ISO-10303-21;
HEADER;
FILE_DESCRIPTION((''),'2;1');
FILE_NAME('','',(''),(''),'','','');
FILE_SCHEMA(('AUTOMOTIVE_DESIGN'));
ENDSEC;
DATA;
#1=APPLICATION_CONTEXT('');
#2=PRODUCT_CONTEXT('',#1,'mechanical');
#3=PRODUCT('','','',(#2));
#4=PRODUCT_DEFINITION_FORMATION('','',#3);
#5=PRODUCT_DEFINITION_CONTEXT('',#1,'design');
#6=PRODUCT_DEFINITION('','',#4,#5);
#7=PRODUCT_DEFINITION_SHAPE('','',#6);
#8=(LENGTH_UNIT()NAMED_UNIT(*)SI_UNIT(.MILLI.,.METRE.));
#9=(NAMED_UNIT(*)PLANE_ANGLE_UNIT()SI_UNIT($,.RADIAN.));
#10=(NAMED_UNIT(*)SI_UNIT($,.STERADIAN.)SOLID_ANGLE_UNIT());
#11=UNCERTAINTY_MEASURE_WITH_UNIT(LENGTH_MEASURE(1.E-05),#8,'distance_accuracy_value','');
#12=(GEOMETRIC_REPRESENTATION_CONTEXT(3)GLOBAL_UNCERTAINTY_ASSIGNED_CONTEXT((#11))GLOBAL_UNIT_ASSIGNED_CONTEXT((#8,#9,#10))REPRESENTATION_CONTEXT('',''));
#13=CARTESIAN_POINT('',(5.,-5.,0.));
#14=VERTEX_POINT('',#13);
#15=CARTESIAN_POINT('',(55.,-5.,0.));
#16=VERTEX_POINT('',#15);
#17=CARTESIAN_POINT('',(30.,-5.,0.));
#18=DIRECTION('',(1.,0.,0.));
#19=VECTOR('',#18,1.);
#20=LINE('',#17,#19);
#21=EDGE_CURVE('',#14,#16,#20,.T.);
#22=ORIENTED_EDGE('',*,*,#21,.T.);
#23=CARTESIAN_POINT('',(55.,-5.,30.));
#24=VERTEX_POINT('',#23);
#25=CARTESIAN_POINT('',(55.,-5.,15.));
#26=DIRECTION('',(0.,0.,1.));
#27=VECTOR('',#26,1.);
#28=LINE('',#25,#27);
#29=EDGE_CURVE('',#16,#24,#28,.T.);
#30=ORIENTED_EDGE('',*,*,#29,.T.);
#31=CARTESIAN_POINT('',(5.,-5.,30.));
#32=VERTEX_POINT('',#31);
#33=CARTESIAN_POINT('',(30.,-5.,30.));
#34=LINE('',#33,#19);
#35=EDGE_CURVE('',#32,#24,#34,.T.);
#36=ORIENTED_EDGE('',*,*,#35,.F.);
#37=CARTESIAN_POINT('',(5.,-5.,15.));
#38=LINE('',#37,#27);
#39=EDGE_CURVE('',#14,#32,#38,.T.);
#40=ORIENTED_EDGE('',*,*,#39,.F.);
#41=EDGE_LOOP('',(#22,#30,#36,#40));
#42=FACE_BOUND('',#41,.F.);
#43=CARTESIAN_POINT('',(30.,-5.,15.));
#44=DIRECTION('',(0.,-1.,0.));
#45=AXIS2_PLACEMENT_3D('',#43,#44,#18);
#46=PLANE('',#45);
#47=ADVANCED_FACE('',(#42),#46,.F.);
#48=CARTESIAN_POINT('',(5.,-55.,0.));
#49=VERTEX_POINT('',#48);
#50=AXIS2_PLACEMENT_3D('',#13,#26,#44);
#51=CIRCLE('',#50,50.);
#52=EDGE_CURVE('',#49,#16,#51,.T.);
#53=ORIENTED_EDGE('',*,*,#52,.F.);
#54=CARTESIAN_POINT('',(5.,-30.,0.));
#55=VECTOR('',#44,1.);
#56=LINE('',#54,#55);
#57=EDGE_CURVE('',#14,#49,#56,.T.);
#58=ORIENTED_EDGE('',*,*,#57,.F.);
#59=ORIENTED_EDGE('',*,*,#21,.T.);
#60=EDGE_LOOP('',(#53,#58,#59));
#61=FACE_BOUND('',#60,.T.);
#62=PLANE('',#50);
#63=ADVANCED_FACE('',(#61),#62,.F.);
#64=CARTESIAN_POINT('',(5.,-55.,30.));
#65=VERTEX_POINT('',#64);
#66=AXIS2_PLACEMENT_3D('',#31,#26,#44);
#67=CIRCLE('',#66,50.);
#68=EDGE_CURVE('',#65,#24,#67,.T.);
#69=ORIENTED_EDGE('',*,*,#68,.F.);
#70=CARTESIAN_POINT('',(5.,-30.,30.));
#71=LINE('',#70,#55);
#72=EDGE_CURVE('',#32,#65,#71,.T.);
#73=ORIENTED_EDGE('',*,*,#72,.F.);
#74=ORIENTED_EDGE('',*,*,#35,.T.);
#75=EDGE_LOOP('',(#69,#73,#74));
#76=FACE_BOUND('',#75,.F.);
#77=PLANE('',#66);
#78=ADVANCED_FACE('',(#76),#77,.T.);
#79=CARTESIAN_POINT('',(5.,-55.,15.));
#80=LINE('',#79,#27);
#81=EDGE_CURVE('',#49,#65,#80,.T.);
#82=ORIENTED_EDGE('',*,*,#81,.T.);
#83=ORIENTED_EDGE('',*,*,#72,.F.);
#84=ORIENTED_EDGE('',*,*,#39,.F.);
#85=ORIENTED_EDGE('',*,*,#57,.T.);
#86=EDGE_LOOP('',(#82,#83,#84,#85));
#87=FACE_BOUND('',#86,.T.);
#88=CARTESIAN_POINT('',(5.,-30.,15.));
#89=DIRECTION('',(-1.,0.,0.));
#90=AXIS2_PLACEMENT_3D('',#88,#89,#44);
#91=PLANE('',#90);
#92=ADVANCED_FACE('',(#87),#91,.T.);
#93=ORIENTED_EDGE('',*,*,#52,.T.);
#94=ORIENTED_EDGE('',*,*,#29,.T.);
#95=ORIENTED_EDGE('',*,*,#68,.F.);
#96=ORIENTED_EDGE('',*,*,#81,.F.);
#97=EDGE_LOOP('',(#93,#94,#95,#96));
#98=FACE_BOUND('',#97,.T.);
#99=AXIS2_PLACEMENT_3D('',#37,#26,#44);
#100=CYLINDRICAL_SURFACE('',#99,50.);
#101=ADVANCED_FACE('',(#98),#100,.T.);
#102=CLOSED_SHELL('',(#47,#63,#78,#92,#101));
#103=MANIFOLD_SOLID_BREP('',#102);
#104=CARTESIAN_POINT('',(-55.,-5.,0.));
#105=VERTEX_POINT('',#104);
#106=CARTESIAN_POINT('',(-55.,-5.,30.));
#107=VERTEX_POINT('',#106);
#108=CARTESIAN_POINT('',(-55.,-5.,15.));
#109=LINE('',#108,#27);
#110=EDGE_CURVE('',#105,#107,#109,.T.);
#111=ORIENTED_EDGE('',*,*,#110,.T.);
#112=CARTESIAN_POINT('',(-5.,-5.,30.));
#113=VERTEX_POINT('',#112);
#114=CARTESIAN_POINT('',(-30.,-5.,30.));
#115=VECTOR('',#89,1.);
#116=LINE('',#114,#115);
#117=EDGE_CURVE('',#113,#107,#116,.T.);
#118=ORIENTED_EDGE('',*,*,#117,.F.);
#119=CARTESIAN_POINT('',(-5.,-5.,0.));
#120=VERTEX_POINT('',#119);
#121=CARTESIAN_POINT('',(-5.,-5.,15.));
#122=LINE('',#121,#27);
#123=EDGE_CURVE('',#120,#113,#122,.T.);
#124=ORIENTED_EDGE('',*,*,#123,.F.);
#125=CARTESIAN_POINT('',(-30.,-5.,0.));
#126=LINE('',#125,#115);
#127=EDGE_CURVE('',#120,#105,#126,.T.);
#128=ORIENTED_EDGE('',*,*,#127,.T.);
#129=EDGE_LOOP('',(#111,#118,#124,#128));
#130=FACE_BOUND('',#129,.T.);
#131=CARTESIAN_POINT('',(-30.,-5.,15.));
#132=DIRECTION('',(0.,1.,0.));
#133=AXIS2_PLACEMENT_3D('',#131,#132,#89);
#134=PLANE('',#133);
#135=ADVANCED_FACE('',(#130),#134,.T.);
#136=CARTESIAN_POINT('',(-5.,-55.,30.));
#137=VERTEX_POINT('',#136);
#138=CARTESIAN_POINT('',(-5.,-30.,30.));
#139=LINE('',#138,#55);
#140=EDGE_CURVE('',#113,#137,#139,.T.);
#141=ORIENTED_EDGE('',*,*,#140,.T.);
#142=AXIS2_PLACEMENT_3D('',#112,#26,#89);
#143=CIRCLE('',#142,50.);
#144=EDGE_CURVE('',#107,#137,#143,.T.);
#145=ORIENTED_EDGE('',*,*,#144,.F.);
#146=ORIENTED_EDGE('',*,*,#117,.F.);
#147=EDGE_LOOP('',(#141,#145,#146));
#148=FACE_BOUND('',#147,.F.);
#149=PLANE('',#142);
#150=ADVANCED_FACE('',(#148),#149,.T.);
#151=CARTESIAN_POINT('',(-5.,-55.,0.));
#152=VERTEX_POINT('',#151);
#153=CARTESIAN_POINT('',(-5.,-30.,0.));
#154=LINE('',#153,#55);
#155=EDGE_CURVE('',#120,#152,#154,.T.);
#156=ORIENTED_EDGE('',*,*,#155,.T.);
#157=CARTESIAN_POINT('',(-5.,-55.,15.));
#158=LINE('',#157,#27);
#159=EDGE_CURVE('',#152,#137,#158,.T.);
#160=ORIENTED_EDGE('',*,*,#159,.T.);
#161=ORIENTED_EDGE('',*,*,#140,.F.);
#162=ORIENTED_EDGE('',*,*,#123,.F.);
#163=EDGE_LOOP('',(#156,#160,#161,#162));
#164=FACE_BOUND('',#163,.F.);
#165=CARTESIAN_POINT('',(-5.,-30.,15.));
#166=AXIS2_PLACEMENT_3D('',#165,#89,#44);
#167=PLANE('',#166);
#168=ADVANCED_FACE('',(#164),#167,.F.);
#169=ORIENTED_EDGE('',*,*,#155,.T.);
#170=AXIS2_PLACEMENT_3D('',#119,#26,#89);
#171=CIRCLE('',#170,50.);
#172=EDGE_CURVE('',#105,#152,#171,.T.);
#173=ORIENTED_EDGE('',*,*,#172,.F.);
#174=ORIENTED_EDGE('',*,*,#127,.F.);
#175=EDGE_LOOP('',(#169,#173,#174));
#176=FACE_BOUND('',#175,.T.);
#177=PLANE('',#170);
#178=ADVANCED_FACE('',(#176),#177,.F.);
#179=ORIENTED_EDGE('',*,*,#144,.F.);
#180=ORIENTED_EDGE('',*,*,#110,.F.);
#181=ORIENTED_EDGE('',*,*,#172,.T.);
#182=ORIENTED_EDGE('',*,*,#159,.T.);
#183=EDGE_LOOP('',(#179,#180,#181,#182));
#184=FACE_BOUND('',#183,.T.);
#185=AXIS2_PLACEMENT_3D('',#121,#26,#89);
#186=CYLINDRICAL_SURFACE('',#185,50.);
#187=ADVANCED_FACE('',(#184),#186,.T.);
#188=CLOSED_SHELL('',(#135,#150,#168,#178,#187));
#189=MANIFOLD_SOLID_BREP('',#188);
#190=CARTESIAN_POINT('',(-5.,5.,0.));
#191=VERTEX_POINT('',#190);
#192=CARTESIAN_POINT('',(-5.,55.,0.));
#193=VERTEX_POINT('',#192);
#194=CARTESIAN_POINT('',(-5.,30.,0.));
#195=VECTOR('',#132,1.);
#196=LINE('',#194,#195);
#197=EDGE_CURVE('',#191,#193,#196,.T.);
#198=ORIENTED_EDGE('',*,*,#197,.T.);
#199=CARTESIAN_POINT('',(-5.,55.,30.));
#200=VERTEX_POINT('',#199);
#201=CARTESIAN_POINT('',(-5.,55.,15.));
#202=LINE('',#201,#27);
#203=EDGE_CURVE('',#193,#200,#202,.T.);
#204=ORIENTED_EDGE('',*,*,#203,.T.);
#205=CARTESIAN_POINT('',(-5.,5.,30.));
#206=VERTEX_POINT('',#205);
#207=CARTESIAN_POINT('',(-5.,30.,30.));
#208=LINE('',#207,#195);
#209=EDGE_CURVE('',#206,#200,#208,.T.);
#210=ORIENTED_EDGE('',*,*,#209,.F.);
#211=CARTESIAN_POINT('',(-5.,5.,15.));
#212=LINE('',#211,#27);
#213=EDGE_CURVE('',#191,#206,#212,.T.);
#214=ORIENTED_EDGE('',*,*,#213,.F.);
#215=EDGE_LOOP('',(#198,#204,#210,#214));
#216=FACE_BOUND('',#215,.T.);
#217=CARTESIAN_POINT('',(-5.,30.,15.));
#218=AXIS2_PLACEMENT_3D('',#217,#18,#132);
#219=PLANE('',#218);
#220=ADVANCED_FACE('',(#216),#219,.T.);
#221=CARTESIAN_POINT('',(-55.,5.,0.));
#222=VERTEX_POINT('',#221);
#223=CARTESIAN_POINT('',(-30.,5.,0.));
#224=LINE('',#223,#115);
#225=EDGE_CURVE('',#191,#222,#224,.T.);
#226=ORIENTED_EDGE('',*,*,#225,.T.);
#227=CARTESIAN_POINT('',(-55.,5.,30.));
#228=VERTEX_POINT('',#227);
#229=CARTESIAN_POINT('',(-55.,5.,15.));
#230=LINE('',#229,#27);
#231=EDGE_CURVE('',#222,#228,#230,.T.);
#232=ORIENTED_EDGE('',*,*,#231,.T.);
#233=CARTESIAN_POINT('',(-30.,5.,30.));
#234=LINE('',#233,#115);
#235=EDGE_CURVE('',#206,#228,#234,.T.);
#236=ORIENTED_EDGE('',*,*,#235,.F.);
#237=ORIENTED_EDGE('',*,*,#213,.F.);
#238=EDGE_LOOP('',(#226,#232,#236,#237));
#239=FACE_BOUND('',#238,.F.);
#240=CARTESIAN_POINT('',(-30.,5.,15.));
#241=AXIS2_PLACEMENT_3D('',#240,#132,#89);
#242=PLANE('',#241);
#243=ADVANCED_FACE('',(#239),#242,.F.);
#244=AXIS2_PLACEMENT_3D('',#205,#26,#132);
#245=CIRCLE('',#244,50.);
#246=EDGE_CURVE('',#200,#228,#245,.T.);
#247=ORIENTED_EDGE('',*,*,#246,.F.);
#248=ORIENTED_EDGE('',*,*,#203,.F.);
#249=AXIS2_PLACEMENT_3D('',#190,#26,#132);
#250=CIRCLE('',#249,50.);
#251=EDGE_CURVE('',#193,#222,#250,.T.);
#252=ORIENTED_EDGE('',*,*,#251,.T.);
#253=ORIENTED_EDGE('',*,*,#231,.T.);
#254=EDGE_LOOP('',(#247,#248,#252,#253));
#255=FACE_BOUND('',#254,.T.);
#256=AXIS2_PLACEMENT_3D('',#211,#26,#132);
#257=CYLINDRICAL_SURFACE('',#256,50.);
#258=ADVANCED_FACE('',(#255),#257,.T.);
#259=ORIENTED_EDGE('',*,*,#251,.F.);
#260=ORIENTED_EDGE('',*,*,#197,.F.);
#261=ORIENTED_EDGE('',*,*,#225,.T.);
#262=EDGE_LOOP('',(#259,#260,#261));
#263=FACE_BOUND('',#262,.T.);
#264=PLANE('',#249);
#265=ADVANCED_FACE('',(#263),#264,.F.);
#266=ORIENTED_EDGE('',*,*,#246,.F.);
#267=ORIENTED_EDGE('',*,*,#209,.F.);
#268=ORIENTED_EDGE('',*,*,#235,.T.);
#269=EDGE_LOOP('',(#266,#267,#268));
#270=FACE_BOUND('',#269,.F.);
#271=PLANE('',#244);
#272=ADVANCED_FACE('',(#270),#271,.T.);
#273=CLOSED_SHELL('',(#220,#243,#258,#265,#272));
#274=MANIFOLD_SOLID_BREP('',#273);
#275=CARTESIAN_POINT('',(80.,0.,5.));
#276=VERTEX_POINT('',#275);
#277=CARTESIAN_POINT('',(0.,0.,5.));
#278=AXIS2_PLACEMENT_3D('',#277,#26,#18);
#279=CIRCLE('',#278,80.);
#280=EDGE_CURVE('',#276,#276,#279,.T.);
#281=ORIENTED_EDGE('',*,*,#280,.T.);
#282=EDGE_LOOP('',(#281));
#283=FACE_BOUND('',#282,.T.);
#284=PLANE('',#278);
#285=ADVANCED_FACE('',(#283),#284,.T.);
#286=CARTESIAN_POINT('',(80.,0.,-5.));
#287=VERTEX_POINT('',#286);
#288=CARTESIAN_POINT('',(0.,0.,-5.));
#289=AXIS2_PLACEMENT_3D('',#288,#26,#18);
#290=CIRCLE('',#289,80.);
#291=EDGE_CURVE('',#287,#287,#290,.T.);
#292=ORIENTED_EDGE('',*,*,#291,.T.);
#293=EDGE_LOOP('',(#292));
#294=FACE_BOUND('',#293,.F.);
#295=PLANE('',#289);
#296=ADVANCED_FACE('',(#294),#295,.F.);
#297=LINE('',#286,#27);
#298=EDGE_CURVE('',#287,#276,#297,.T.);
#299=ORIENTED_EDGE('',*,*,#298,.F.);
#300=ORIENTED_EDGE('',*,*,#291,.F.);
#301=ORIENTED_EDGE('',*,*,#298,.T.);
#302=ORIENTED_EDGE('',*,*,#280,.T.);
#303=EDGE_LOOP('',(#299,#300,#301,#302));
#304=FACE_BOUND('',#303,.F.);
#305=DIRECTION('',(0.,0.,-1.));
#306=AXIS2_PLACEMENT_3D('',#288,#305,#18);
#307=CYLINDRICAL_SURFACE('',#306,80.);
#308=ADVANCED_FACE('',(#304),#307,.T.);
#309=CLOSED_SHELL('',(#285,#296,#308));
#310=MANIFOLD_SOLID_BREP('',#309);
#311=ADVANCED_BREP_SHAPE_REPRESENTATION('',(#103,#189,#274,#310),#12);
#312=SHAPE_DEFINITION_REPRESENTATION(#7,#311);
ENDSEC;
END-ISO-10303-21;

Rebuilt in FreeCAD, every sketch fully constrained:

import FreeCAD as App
import Part
import Sketcher
from FreeCAD import Vector


def add_polygon(sketch, points):
    """Adds a closed chain of lines whose ends are joined by coincident constraints."""
    first, n = sketch.GeometryCount, len(points)
    for a, b in zip(points, points[1:] + points[:1]):
        sketch.addGeometry(Part.LineSegment(App.Vector(*a, 0), App.Vector(*b, 0)), False)
    for i in range(n):
        sketch.addConstraint(Sketcher.Constraint("Coincident", first + i, 2, first + (i + 1) % n, 1))

doc = App.newDocument("Part")
body = doc.addObject("PartDesign::Body", "Body")

# Sketch on XY plane
sketch1 = doc.addObject("Sketcher::SketchObject", "Sketch")
body.addObject(sketch1)
sketch1.AttachmentSupport = (doc.XY_Plane, [""])
sketch1.MapMode = "FlatFace"
sketch1.AttachmentOffset = App.Placement(Vector(0, 0, -5), App.Rotation())
sketch1.addGeometry(Part.Circle(Vector(0, 0, 0), Vector(0, 0, 1), 80), False)
sketch1.addConstraint([
    Sketcher.Constraint("Coincident", 0, 3, -1, 1),
    Sketcher.Constraint("Diameter", 0, 160.0),
])
pad1 = doc.addObject("PartDesign::Pad", "Pad")
body.addObject(pad1)
pad1.Profile = sketch1
pad1.Length = 10
body2 = doc.addObject("PartDesign::Body", "Body001")

# Sketch on YZ plane
sketch2 = doc.addObject("Sketcher::SketchObject", "Sketch001")
body2.addObject(sketch2)
sketch2.AttachmentSupport = (doc.getObject("YZ_Plane001"), [""])
sketch2.MapMode = "FlatFace"
sketch2.AttachmentOffset = App.Placement(Vector(0, 0, -5), App.Rotation())
add_polygon(sketch2, [(5, 30), (5, 0), (55, 0), (55, 30)])  # lines 0-3
sketch2.addGeometry(Part.LineSegment(Vector(5, 0, 0), Vector(5, 30, 0)), True)  # axis
sketch2.addConstraint([
    Sketcher.Constraint("Vertical", 0),
    Sketcher.Constraint("Horizontal", 1),
    Sketcher.Constraint("Vertical", 2),
    Sketcher.Constraint("Horizontal", 3),
    Sketcher.Constraint("Vertical", 4),
    Sketcher.Constraint("Coincident", 4, 1, 0, 2),
    Sketcher.Constraint("PointOnObject", 0, 2, -1),
    Sketcher.Constraint("Horizontal", 2, 2, 4, 2),
    Sketcher.Constraint("DistanceX", 1, 1, 1, 2, 50.0),
    Sketcher.Constraint("DistanceY", 0, 2, 0, 1, 30.0),
    Sketcher.Constraint("DistanceX", -1, 1, 0, 2, 5.0),
])
revolution = doc.addObject("PartDesign::Revolution", "Revolution")
body2.addObject(revolution)
revolution.Profile = sketch2
revolution.ReferenceAxis = (sketch2, ["Axis0"])
revolution.Angle = 90
body3 = doc.addObject("PartDesign::Body", "Body002")

# Sketch on XZ plane
sketch3 = doc.addObject("Sketcher::SketchObject", "Sketch002")
body3.addObject(sketch3)
sketch3.AttachmentSupport = (doc.getObject("XZ_Plane002"), [""])
sketch3.MapMode = "FlatFace"
sketch3.AttachmentOffset = App.Placement(Vector(0, 0, 5), App.Rotation())
add_polygon(sketch3, [(-5, 30), (-5, 0), (-55, 0), (-55, 30)])  # lines 0-3
sketch3.addGeometry(Part.LineSegment(Vector(-5, 0, 0), Vector(-5, 30, 0)), True)  # axis
sketch3.addConstraint([
    Sketcher.Constraint("Vertical", 0),
    Sketcher.Constraint("Horizontal", 1),
    Sketcher.Constraint("Vertical", 2),
    Sketcher.Constraint("Horizontal", 3),
    Sketcher.Constraint("Vertical", 4),
    Sketcher.Constraint("Coincident", 4, 1, 0, 2),
    Sketcher.Constraint("PointOnObject", 0, 2, -1),
    Sketcher.Constraint("Horizontal", 2, 2, 4, 2),
    Sketcher.Constraint("DistanceX", 1, 2, 1, 1, 50.0),
    Sketcher.Constraint("DistanceY", 0, 2, 0, 1, 30.0),
    Sketcher.Constraint("DistanceX", 0, 2, -1, 1, 5.0),
])
revolution2 = doc.addObject("PartDesign::Revolution", "Revolution001")
body3.addObject(revolution2)
revolution2.Profile = sketch3
revolution2.ReferenceAxis = (sketch3, ["Axis0"])
revolution2.Angle = 90
body4 = doc.addObject("PartDesign::Body", "Body003")

# Sketch on YZ plane
sketch4 = doc.addObject("Sketcher::SketchObject", "Sketch003")
body4.addObject(sketch4)
sketch4.AttachmentSupport = (doc.getObject("YZ_Plane003"), [""])
sketch4.MapMode = "FlatFace"
sketch4.AttachmentOffset = App.Placement(Vector(0, 0, 5), App.Rotation())
add_polygon(sketch4, [(-5, 30), (-5, 0), (-55, 0), (-55, 30)])  # lines 0-3
sketch4.addGeometry(Part.LineSegment(Vector(-5, 0, 0), Vector(-5, 30, 0)), True)  # axis
sketch4.addConstraint([
    Sketcher.Constraint("Vertical", 0),
    Sketcher.Constraint("Horizontal", 1),
    Sketcher.Constraint("Vertical", 2),
    Sketcher.Constraint("Horizontal", 3),
    Sketcher.Constraint("Vertical", 4),
    Sketcher.Constraint("Coincident", 4, 1, 0, 2),
    Sketcher.Constraint("PointOnObject", 0, 2, -1),
    Sketcher.Constraint("Horizontal", 2, 2, 4, 2),
    Sketcher.Constraint("DistanceX", 1, 2, 1, 1, 50.0),
    Sketcher.Constraint("DistanceY", 0, 2, 0, 1, 30.0),
    Sketcher.Constraint("DistanceX", 0, 2, -1, 1, 5.0),
])
revolution3 = doc.addObject("PartDesign::Revolution", "Revolution002")
body4.addObject(revolution3)
revolution3.Profile = sketch4
revolution3.ReferenceAxis = (sketch4, ["Axis0"])
revolution3.Angle = 90

doc.recompute()
